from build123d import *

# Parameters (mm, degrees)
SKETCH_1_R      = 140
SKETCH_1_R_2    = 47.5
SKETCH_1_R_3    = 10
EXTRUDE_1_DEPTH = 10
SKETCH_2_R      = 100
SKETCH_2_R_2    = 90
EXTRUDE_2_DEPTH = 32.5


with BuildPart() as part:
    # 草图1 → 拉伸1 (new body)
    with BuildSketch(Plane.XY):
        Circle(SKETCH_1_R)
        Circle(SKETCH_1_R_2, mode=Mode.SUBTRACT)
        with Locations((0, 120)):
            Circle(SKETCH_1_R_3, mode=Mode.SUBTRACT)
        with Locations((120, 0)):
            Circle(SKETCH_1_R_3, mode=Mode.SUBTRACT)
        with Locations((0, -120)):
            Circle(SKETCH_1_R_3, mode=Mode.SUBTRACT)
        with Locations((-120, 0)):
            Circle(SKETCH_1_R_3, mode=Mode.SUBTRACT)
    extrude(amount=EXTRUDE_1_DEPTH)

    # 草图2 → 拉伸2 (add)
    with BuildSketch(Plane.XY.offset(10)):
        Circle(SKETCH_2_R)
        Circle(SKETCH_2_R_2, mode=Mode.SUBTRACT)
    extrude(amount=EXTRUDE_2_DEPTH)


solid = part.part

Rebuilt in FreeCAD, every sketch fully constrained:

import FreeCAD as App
import Part
import Sketcher
from FreeCAD import Vector

doc = App.newDocument("Part")
body = doc.addObject("PartDesign::Body", "Body")

sketch1 = body.newObject("Sketcher::SketchObject", "Sketch")
sketch1.AttachmentSupport = (doc.getObject("XY_Plane"), [""])
sketch1.MapMode = "FlatFace"
sketch1.addGeometry([
    Part.Circle(Vector(0, 0, 0), Vector(0, 0, 1), 140),
    Part.Circle(Vector(0, -120, 0), Vector(0, 0, 1), 10),
    Part.Circle(Vector(-120, 0, 0), Vector(0, 0, 1), 10),
    Part.Circle(Vector(0, 0, 0), Vector(0, 0, 1), 48),
    Part.Circle(Vector(120, 0, 0), Vector(0, 0, 1), 10),
    Part.Circle(Vector(0, 120, 0), Vector(0, 0, 1), 10),
], False)
sketch1.addConstraint([
    Sketcher.Constraint("Coincident", 0, 3, -1, 1),
    Sketcher.Constraint("Coincident", 3, 3, -1, 1),
    Sketcher.Constraint("Equal", 1, 2),
    Sketcher.Constraint("Equal", 2, 4),
    Sketcher.Constraint("Equal", 4, 5),
    Sketcher.Constraint("Symmetric", 2, 3, 4, 3, -1, 1),
    Sketcher.Constraint("Symmetric", 1, 3, 5, 3, -1, 1),
    Sketcher.Constraint("PointOnObject", 1, 3, -2),
    Sketcher.Constraint("PointOnObject", 2, 3, -1),
    Sketcher.Constraint("Diameter", 0, 280.0),
    Sketcher.Constraint("Diameter", 1, 20.0),
    Sketcher.Constraint("Diameter", 3, 95.0),
    Sketcher.Constraint("DistanceY", 1, 3, -1, 1, 120.0),
    Sketcher.Constraint("DistanceX", 2, 3, -1, 1, 120.0),
])
pad1 = body.newObject("PartDesign::Pad", "Pad")
pad1.Profile = sketch1
pad1.Length = 10

sketch2 = body.newObject("Sketcher::SketchObject", "Sketch001")
sketch2.AttachmentSupport = (doc.getObject("XY_Plane"), [""])
sketch2.MapMode = "FlatFace"
sketch2.AttachmentOffset = App.Placement(Vector(0, 0, 10), App.Rotation())
sketch2.addGeometry([
    Part.Circle(Vector(0, 0, 0), Vector(0, 0, 1), 100),
    Part.Circle(Vector(0, 0, 0), Vector(0, 0, 1), 90),
], False)
sketch2.addConstraint([
    Sketcher.Constraint("Coincident", 0, 3, -1, 1),
    Sketcher.Constraint("Coincident", 1, 3, -1, 1),
    Sketcher.Constraint("Diameter", 0, 200.0),
    Sketcher.Constraint("Diameter", 1, 180.0),
])
pad2 = body.newObject("PartDesign::Pad", "Pad001")
pad2.Profile = sketch2
pad2.Length = 32.5

doc.recompute()
